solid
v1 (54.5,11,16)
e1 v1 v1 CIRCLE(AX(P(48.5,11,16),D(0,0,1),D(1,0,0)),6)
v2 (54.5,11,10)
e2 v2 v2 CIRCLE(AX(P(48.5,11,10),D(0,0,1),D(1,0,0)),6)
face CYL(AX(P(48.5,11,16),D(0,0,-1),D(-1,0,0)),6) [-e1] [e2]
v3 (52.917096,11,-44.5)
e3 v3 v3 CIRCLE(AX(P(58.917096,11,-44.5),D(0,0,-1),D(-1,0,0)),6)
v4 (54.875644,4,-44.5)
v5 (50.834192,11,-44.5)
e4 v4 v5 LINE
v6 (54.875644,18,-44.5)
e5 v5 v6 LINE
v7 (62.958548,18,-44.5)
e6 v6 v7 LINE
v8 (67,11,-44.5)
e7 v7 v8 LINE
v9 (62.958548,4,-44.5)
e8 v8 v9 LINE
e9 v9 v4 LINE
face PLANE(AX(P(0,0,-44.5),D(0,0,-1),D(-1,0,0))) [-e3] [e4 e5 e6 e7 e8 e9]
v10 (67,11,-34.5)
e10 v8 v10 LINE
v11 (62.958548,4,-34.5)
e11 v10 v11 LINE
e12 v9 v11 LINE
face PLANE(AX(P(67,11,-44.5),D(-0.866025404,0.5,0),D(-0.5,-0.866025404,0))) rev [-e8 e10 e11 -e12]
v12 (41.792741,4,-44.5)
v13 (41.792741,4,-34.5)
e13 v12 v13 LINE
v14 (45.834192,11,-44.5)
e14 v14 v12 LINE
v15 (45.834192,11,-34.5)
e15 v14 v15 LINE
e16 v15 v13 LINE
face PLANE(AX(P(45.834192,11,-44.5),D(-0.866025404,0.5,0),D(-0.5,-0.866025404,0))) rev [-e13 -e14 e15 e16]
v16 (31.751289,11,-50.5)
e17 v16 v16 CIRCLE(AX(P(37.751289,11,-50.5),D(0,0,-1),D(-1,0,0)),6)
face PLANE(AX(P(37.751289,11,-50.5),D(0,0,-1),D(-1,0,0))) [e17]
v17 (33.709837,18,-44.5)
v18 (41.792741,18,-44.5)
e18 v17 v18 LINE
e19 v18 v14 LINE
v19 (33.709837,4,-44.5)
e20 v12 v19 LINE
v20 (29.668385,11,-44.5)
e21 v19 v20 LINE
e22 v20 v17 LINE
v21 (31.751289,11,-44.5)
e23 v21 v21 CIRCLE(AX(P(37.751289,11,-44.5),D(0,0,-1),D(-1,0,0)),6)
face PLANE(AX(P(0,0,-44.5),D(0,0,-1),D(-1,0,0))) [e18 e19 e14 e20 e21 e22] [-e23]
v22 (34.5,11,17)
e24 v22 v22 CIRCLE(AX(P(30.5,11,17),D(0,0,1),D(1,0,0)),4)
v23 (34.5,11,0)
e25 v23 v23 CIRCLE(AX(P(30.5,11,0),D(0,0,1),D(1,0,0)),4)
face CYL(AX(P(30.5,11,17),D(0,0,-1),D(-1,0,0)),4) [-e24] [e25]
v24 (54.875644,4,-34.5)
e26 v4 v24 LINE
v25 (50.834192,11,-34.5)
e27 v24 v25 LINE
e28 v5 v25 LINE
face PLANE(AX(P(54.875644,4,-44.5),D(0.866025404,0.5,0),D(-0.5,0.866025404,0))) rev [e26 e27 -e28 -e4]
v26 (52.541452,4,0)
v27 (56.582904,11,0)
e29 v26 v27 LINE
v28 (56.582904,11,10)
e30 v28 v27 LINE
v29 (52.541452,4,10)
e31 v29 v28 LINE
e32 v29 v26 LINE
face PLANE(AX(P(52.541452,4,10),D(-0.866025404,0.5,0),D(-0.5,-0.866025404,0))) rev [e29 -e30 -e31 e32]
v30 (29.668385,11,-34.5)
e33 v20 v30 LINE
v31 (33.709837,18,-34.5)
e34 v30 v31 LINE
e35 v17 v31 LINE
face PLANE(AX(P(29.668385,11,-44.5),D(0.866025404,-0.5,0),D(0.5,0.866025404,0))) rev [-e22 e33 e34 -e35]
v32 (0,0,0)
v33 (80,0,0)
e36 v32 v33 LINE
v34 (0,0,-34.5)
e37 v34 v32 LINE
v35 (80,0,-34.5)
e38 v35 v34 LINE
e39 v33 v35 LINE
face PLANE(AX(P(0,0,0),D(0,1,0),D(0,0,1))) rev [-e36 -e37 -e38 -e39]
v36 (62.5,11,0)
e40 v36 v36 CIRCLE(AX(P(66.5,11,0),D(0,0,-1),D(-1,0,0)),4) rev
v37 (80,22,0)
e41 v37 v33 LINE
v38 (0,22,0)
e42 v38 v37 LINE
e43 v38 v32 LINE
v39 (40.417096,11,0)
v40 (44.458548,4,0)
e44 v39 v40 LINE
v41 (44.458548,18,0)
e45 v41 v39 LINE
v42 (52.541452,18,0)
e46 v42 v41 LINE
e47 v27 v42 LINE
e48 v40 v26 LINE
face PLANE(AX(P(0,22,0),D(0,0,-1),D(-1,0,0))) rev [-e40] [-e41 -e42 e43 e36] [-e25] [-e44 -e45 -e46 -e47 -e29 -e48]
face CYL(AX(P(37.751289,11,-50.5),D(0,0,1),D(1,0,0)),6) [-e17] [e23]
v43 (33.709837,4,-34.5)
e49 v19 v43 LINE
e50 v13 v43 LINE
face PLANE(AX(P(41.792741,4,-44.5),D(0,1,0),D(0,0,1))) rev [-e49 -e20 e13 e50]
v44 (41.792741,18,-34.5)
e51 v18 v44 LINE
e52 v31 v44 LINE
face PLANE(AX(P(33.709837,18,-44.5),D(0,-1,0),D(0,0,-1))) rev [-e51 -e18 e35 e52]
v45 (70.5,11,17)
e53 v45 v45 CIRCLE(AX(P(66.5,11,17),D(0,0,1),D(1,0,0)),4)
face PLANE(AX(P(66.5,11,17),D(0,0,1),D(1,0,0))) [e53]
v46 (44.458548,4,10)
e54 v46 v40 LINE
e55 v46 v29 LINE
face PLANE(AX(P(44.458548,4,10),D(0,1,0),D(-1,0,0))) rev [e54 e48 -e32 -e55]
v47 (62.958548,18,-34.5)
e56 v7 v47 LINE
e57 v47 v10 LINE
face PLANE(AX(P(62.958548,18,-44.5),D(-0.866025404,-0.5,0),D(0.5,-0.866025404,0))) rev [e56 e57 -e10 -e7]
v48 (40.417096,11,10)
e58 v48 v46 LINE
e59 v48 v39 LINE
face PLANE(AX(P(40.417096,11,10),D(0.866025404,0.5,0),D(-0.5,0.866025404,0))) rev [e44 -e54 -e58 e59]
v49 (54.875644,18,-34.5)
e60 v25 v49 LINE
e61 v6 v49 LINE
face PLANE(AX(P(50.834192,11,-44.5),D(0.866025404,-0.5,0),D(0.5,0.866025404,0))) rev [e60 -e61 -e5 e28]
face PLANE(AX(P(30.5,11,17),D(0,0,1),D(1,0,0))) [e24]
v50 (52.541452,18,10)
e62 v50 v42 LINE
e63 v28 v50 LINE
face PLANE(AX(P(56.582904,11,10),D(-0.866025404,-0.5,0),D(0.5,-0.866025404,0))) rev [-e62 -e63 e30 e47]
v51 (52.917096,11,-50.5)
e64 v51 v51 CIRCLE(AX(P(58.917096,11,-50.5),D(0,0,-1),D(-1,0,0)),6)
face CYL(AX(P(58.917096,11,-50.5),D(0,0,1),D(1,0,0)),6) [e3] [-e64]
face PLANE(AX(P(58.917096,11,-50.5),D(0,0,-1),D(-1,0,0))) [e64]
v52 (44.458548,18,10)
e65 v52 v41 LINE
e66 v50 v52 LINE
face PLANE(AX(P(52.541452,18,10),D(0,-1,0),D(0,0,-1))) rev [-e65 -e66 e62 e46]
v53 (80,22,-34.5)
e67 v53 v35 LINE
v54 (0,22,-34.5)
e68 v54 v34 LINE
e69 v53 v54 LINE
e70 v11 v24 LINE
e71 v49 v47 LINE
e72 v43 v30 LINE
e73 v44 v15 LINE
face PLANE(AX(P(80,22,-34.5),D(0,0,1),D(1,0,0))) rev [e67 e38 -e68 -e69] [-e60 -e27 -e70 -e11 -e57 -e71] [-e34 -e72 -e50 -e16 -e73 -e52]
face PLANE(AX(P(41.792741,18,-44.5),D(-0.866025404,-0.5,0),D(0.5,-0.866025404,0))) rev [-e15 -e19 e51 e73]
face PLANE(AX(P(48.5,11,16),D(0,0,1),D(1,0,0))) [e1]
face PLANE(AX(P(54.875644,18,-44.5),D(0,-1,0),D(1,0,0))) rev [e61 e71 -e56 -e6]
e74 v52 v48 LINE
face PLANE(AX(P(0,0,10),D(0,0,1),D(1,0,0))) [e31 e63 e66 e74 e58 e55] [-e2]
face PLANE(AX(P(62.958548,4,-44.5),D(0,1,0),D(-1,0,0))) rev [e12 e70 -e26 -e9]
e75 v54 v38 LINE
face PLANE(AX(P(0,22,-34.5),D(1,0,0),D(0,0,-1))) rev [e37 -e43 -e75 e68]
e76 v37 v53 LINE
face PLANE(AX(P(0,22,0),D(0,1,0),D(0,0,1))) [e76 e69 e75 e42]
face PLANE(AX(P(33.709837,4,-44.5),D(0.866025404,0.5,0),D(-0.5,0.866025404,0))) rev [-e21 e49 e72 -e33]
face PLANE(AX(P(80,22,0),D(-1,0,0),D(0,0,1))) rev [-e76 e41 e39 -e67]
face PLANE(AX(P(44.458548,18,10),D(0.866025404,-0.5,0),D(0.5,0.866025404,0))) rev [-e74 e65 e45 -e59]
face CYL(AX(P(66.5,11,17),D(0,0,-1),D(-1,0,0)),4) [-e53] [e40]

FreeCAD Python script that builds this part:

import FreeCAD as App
import Part
import Sketcher
from FreeCAD import Vector
Q = App.Units.Quantity


def add_polygon(sketch, points):
    """Adds a closed chain of lines whose ends are joined by coincident constraints."""
    first, n = sketch.GeometryCount, len(points)
    for a, b in zip(points, points[1:] + points[:1]):
        sketch.addGeometry(Part.LineSegment(App.Vector(*a, 0), App.Vector(*b, 0)), False)
    for i in range(n):
        sketch.addConstraint(Sketcher.Constraint("Coincident", first + i, 2, first + (i + 1) % n, 1))

doc = App.newDocument("Part")
params = doc.addObject("Spreadsheet::Sheet", "Params")
for row, (alias, value) in enumerate([
    ("sketch1_width", "80 mm"),
    ("sketch1_height", "34.5 mm"),
    ("pad1_length", "22 mm"),
    ("sketch2_diameter", "8 mm"),
    ("pad2_length", "17 mm"),
    ("pad3_length", "10 mm"),
    ("pad4_length", "10 mm"),
    ("sketch5_diameter", "12 mm"),
    ("pad5_length", "6 mm"),
    ("sketch6_diameter", "12 mm"),
    ("pad6_length", "6 mm"),
], start=1):
    params.set(f"A{row}", alias)
    params.set(f"B{row}", "=" + value)
    params.setAlias(f"B{row}", alias)

body = doc.addObject("PartDesign::Body", "Body")

# Sketch on XZ plane
sketch1 = body.newObject("Sketcher::SketchObject", "Sketch")
sketch1.AttachmentSupport = (doc.getObject("XZ_Plane"), [""])
sketch1.MapMode = "FlatFace"
add_polygon(sketch1, [(0, -34.5), (0, 0), (80, 0), (80, -34.5)])  # lines 0-3
sketch1.addConstraint([
    Sketcher.Constraint("Vertical", 0),
    Sketcher.Constraint("Horizontal", 1),
    Sketcher.Constraint("Vertical", 2),
    Sketcher.Constraint("Horizontal", 3),
    Sketcher.Constraint("Coincident", 0, 2, -1, 1),
    Sketcher.Constraint("DistanceX", 1, 1, 1, 2, 80.0),
    Sketcher.Constraint("DistanceY", 0, 1, 0, 2, 34.5),
])
sketch1.setExpression("Constraints[9]", "Params.sketch1_width")
sketch1.setExpression("Constraints[10]", "Params.sketch1_height")
pad1 = body.newObject("PartDesign::Pad", "Pad")
pad1.Profile = sketch1
pad1.setExpression("Length", "Params.pad1_length")
pad1.Reversed = True

# Sketch on XY plane
sketch2 = body.newObject("Sketcher::SketchObject", "Sketch001")
sketch2.AttachmentSupport = (doc.getObject("XY_Plane"), [""])
sketch2.MapMode = "FlatFace"
sketch2.addGeometry([
    Part.Circle(Vector(30.5, 11, 0), Vector(0, 0, 1), 4),
    Part.Circle(Vector(66.5, 11, 0), Vector(0, 0, 1), 4),
], False)
sketch2.addConstraint([
    Sketcher.Constraint("Equal", 0, 1),
    Sketcher.Constraint("Horizontal", 0, 3, 1, 3),
    Sketcher.Constraint("Diameter", 0, 8.0),
    Sketcher.Constraint("DistanceY", -1, 1, 0, 3, 11.0),
    Sketcher.Constraint("DistanceX", 0, 3, 1, 3, 36.0),
    Sketcher.Constraint("DistanceX", -1, 1, 0, 3, 30.5),
])
sketch2.setExpression("Constraints[2]", "Params.sketch2_diameter")
pad2 = body.newObject("PartDesign::Pad", "Pad001")
pad2.Profile = sketch2
pad2.setExpression("Length", "Params.pad2_length")

# Sketch on XY plane
sketch3 = body.newObject("Sketcher::SketchObject", "Sketch002")
sketch3.AttachmentSupport = (doc.getObject("XY_Plane"), [""])
sketch3.MapMode = "FlatFace"
sketch3.AttachmentOffset = App.Placement(Vector(0, 0, -34.5), App.Rotation())
add_polygon(sketch3, [(50.834192, 11), (54.875644, 18), (62.958548, 18), (67, 11), (62.958548, 4), (54.875644, 4)])  # lines 0-5
add_polygon(sketch3, [(29.668385, 11), (33.709837, 18), (41.792741, 18), (45.834192, 11), (41.792741, 4), (33.709837, 4)])  # lines 6-11
sketch3.addConstraint([
    Sketcher.Constraint("Horizontal", 1),
    Sketcher.Constraint("Horizontal", 4),
    Sketcher.Constraint("Horizontal", 7),
    Sketcher.Constraint("Horizontal", 10),
    Sketcher.Constraint("Parallel", 0, 3),
    Sketcher.Constraint("Parallel", 2, 5),
    Sketcher.Constraint("Parallel", 3, 6),
    Sketcher.Constraint("Parallel", 5, 8),
    Sketcher.Constraint("Parallel", 6, 9),
    Sketcher.Constraint("Parallel", 8, 11),
    Sketcher.Constraint("Horizontal", 2, 2, 5, 2),
    Sketcher.Constraint("Horizontal", 1, 2, 6, 2),
    Sketcher.Constraint("Horizontal", 5, 2, 8, 2),
    Sketcher.Constraint("Horizontal", 4, 2, 9, 2),
    Sketcher.Constraint("Horizontal", 8, 2, 11, 2),
    Sketcher.Constraint("Vertical", 1, 2, 3, 2),
    Sketcher.Constraint("Vertical", 0, 2, 4, 2),
    Sketcher.Constraint("Equal", 4, 7),
    Sketcher.Constraint("Angle", 0, Q("60 deg")),
    Sketcher.Constraint("DistanceY", -1, 1, 0, 2, 18.0),
    Sketcher.Constraint("DistanceX", -1, 1, 2, 2, 67.0),
    Sketcher.Constraint("DistanceY", -1, 1, 2, 2, 11.0),
    Sketcher.Constraint("DistanceX", 8, 2, 5, 2, 5.0),
    Sketcher.Constraint("DistanceX", 1, 1, 1, 2, 8.082904),
])
pad3 = body.newObject("PartDesign::Pad", "Pad002")
pad3.Profile = sketch3
pad3.setExpression("Length", "Params.pad3_length")
pad3.Reversed = True

# Sketch on XY plane
sketch4 = body.newObject("Sketcher::SketchObject", "Sketch003")
sketch4.AttachmentSupport = (doc.getObject("XY_Plane"), [""])
sketch4.MapMode = "FlatFace"
add_polygon(sketch4, [(56.582904, 11), (52.541452, 18), (44.458548, 18), (40.417096, 11), (44.458548, 4), (52.541452, 4)])  # lines 0-5
sketch4.addConstraint([
    Sketcher.Constraint("Horizontal", 1),
    Sketcher.Constraint("Horizontal", 4),
    Sketcher.Constraint("Parallel", 0, 3),
    Sketcher.Constraint("Parallel", 2, 5),
    Sketcher.Constraint("Horizontal", 2, 2, 5, 2),
    Sketcher.Constraint("Vertical", 1, 2, 3, 2),
    Sketcher.Constraint("Vertical", 0, 2, 4, 2),
    Sketcher.Constraint("Angle", 0, Q("120 deg")),
    Sketcher.Constraint("DistanceY", -1, 1, 0, 2, 18.0),
    Sketcher.Constraint("DistanceY", -1, 1, 2, 2, 11.0),
    Sketcher.Constraint("DistanceX", 1, 2, 1, 1, 8.082904),
    Sketcher.Constraint("DistanceX", -1, 1, 0, 2, 52.541452),
])
pad4 = body.newObject("PartDesign::Pad", "Pad003")
pad4.Profile = sketch4
pad4.setExpression("Length", "Params.pad4_length")

# Sketch on XY plane
sketch5 = body.newObject("Sketcher::SketchObject", "Sketch004")
sketch5.AttachmentSupport = (doc.getObject("XY_Plane"), [""])
sketch5.MapMode = "FlatFace"
sketch5.AttachmentOffset = App.Placement(Vector(0, 0, 10), App.Rotation())
sketch5.addGeometry(Part.Circle(Vector(48.5, 11, 0), Vector(0, 0, 1), 6), False)
sketch5.addConstraint([
    Sketcher.Constraint("Diameter", 0, 12.0),
    Sketcher.Constraint("DistanceY", -1, 1, 0, 3, 11.0),
    Sketcher.Constraint("DistanceX", -1, 1, 0, 3, 48.5),
])
sketch5.setExpression("Constraints[0]", "Params.sketch5_diameter")
pad5 = body.newObject("PartDesign::Pad", "Pad004")
pad5.Profile = sketch5
pad5.setExpression("Length", "Params.pad5_length")

# Sketch on XY plane
sketch6 = body.newObject("Sketcher::SketchObject", "Sketch005")
sketch6.AttachmentSupport = (doc.getObject("XY_Plane"), [""])
sketch6.MapMode = "FlatFace"
sketch6.AttachmentOffset = App.Placement(Vector(0, 0, -44.5), App.Rotation())
sketch6.addGeometry([
    Part.Circle(Vector(58.917096, 11, 0), Vector(0, 0, 1), 6),
    Part.Circle(Vector(37.751289, 11, 0), Vector(0, 0, 1), 6),
], False)
sketch6.addConstraint([
    Sketcher.Constraint("Equal", 0, 1),
    Sketcher.Constraint("Horizontal", 0, 3, 1, 3),
    Sketcher.Constraint("Diameter", 0, 12.0),
    Sketcher.Constraint("DistanceY", -1, 1, 0, 3, 11.0),
    Sketcher.Constraint("DistanceX", -1, 1, 1, 3, 37.751289),
    Sketcher.Constraint("DistanceX", -1, 1, 0, 3, 58.917096),
])
sketch6.setExpression("Constraints[2]", "Params.sketch6_diameter")
pad6 = body.newObject("PartDesign::Pad", "Pad005")
pad6.Profile = sketch6
pad6.setExpression("Length", "Params.pad6_length")
pad6.Reversed = True

doc.recompute()
